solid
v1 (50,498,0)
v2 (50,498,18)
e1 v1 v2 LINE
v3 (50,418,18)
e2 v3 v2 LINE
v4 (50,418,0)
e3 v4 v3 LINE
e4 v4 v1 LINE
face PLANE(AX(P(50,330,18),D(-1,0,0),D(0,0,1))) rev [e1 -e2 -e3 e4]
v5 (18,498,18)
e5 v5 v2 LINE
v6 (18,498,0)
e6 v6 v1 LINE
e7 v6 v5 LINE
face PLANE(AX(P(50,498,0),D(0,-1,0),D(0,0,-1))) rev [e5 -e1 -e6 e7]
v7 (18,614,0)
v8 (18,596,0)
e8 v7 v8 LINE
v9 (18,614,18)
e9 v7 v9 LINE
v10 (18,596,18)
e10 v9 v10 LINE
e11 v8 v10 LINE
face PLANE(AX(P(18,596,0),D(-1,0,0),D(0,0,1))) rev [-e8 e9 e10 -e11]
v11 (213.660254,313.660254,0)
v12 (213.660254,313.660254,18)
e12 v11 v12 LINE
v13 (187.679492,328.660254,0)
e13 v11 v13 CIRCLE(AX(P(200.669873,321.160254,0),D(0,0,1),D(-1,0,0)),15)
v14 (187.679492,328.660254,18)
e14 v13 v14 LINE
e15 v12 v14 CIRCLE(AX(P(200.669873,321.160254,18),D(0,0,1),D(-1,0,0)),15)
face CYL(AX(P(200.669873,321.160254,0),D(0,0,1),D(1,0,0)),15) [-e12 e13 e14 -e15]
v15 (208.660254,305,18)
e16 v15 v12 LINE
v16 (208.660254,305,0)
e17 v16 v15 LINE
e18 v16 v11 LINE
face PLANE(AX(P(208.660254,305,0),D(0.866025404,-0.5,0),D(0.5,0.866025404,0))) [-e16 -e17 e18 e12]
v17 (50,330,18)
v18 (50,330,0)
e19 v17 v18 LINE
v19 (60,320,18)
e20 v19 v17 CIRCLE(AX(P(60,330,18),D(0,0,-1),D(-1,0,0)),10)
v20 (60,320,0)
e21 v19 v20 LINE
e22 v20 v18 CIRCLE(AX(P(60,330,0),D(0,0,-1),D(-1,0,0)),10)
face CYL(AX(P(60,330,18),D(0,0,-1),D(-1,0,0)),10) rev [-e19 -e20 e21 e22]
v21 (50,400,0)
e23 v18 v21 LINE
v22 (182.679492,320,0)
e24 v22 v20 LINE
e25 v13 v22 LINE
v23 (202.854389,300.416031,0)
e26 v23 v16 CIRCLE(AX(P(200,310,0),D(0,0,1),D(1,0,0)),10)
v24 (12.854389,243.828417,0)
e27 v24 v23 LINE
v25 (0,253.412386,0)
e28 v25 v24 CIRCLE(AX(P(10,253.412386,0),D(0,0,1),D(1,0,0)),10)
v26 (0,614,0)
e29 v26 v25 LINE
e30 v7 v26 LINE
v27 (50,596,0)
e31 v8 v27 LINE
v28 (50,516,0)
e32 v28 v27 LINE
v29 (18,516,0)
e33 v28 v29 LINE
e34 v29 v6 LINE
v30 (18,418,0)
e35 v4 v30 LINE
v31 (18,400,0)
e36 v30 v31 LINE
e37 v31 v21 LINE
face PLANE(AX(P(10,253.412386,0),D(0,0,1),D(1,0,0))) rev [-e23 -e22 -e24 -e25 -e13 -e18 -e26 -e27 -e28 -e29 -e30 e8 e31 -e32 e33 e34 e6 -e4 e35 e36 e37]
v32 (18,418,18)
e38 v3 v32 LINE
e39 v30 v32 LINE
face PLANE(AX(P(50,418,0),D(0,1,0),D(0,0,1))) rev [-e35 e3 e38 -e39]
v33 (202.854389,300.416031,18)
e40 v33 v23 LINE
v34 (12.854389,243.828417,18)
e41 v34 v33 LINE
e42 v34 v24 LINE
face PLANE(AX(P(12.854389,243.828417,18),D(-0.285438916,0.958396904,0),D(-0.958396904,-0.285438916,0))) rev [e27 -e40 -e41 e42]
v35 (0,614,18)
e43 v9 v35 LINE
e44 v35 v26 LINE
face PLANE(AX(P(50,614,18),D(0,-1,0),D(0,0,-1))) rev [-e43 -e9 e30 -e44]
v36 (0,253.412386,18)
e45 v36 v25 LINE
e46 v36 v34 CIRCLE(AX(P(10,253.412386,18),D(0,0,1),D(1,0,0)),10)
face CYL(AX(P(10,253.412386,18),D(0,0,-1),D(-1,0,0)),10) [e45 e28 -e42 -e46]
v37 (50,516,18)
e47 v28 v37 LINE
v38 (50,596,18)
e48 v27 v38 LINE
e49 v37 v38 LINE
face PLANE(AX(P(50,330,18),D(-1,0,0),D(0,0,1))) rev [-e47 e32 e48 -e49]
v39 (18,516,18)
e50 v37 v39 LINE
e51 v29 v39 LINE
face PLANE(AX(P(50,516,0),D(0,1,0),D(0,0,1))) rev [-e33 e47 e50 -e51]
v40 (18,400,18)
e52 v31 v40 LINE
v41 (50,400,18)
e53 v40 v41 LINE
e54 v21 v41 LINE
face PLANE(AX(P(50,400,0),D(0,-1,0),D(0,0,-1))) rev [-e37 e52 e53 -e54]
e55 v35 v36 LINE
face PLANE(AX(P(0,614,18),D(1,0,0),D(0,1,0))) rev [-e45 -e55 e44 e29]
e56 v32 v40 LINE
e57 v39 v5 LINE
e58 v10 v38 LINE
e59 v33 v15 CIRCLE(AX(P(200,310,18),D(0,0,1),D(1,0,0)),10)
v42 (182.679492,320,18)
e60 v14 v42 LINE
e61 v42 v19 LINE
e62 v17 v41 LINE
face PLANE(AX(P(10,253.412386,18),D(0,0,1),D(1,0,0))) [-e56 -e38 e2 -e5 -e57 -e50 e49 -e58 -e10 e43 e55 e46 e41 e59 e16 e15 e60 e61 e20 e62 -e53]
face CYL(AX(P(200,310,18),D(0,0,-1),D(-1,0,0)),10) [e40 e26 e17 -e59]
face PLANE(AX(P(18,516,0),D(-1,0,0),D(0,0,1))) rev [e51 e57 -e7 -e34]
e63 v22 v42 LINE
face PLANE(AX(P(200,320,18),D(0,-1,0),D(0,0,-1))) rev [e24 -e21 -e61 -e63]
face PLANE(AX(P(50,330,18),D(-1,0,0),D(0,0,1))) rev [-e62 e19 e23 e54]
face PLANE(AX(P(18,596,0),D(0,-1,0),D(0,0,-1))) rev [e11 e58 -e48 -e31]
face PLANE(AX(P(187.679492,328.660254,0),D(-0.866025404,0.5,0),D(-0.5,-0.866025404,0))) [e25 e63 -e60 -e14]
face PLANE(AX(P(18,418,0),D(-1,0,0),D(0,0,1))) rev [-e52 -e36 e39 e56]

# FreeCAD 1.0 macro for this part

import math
import FreeCAD as App
import Part
import Sketcher
Q = App.Units.Quantity

doc = App.newDocument("Part")
body = doc.addObject("PartDesign::Body", "Body")

# Sketch on XY plane
sketch1 = body.newObject("Sketcher::SketchObject", "Sketch")
sketch1.AttachmentSupport = (doc.getObject("XY_Plane"), [""])
sketch1.MapMode = "FlatFace"
sketch1.addGeometry(Part.LineSegment(App.Vector(0, 614, 0), App.Vector(0, 253.412386, 0)), False)
sketch1.addGeometry(Part.ArcOfCircle(Part.Circle(App.Vector(10, 253.412386, 0), App.Vector(0, 0, 1), 10), math.radians(180), math.radians(286.585087)), False)
sketch1.addGeometry(Part.LineSegment(App.Vector(12.854389, 243.828417, 0), App.Vector(202.854389, 300.416031, 0)), False)
sketch1.addGeometry(Part.ArcOfCircle(Part.Circle(App.Vector(200, 310, 0), App.Vector(0, 0, 1), 10), math.radians(-73.414913), math.radians(90)), False)
sketch1.addGeometry(Part.LineSegment(App.Vector(200, 320, 0), App.Vector(60, 320, 0)), False)
sketch1.addGeometry(Part.ArcOfCircle(Part.Circle(App.Vector(60, 330, 0), App.Vector(0, 0, 1), 10), math.radians(180), math.radians(270)), False)
sketch1.addGeometry(Part.LineSegment(App.Vector(50, 330, 0), App.Vector(50, 614, 0)), False)
sketch1.addGeometry(Part.LineSegment(App.Vector(50, 614, 0), App.Vector(0, 614, 0)), False)
sketch1.addConstraint(Sketcher.Constraint("Tangent", 0, 2, 1, 1))
sketch1.addConstraint(Sketcher.Constraint("Tangent", 1, 2, 2, 1))
sketch1.addConstraint(Sketcher.Constraint("Tangent", 2, 2, 3, 1))
sketch1.addConstraint(Sketcher.Constraint("Tangent", 3, 2, 4, 1))
sketch1.addConstraint(Sketcher.Constraint("Tangent", 4, 2, 5, 2))
sketch1.addConstraint(Sketcher.Constraint("Tangent", 5, 1, 6, 1))
sketch1.addConstraint(Sketcher.Constraint("Coincident", 6, 2, 7, 1))
sketch1.addConstraint(Sketcher.Constraint("Coincident", 7, 2, 0, 1))
sketch1.addConstraint(Sketcher.Constraint("Vertical", 0))
sketch1.addConstraint(Sketcher.Constraint("Horizontal", 4))
sketch1.addConstraint(Sketcher.Constraint("Vertical", 6))
sketch1.addConstraint(Sketcher.Constraint("Horizontal", 7))
sketch1.addConstraint(Sketcher.Constraint("Equal", 1, 3))
sketch1.addConstraint(Sketcher.Constraint("Equal", 3, 5))
sketch1.addConstraint(Sketcher.Constraint("PointOnObject", 0, 2, -2))
sketch1.addConstraint(Sketcher.Constraint("Radius", 1, 10.0))
sketch1.addConstraint(Sketcher.Constraint("DistanceX", 4, 2, 4, 1, 140.0))
sketch1.addConstraint(Sketcher.Constraint("DistanceX", 7, 2, 7, 1, 50.0))
sketch1.addConstraint(Sketcher.Constraint("DistanceY", 6, 1, 6, 2, 284.0))
sketch1.addConstraint(Sketcher.Constraint("DistanceY", -1, 1, 3, 3, 310.0))
sketch1.addConstraint(Sketcher.Constraint("Distance", 2, 198.247719))
pad1 = body.newObject("PartDesign::Pad", "Pad")
pad1.Profile = sketch1
pad1.Length = 18

# Sketch on XY plane
sketch2 = body.newObject("Sketcher::SketchObject", "Sketch001")
sketch2.AttachmentSupport = (doc.getObject("XY_Plane"), [""])
sketch2.MapMode = "FlatFace"
sketch2.AttachmentOffset = App.Placement(App.Vector(0, 0, 18), App.Rotation())
sketch2.addGeometry(Part.LineSegment(App.Vector(18, 614, 0), App.Vector(18, 596, 0)), False)
sketch2.addGeometry(Part.LineSegment(App.Vector(18, 596, 0), App.Vector(50, 596, 0)), False)
sketch2.addGeometry(Part.LineSegment(App.Vector(50, 596, 0), App.Vector(50, 614, 0)), False)
sketch2.addGeometry(Part.LineSegment(App.Vector(50, 614, 0), App.Vector(18, 614, 0)), False)
sketch2.addGeometry(Part.LineSegment(App.Vector(18, 516, 0), App.Vector(18, 498, 0)), False)
sketch2.addGeometry(Part.LineSegment(App.Vector(18, 498, 0), App.Vector(50, 498, 0)), False)
sketch2.addGeometry(Part.LineSegment(App.Vector(50, 498, 0), App.Vector(50, 516, 0)), False)
sketch2.addGeometry(Part.LineSegment(App.Vector(50, 516, 0), App.Vector(18, 516, 0)), False)
sketch2.addGeometry(Part.LineSegment(App.Vector(18, 418, 0), App.Vector(18, 400, 0)), False)
sketch2.addGeometry(Part.LineSegment(App.Vector(18, 400, 0), App.Vector(50, 400, 0)), False)
sketch2.addGeometry(Part.LineSegment(App.Vector(50, 400, 0), App.Vector(50, 418, 0)), False)
sketch2.addGeometry(Part.LineSegment(App.Vector(50, 418, 0), App.Vector(18, 418, 0)), False)
sketch2.addConstraint(Sketcher.Constraint("Coincident", 0, 2, 1, 1))
sketch2.addConstraint(Sketcher.Constraint("Coincident", 1, 2, 2, 1))
sketch2.addConstraint(Sketcher.Constraint("Coincident", 2, 2, 3, 1))
sketch2.addConstraint(Sketcher.Constraint("Coincident", 3, 2, 0, 1))
sketch2.addConstraint(Sketcher.Constraint("Coincident", 4, 2, 5, 1))
sketch2.addConstraint(Sketcher.Constraint("Coincident", 5, 2, 6, 1))
sketch2.addConstraint(Sketcher.Constraint("Coincident", 6, 2, 7, 1))
sketch2.addConstraint(Sketcher.Constraint("Coincident", 7, 2, 4, 1))
sketch2.addConstraint(Sketcher.Constraint("Coincident", 8, 2, 9, 1))
sketch2.addConstraint(Sketcher.Constraint("Coincident", 9, 2, 10, 1))
sketch2.addConstraint(Sketcher.Constraint("Coincident", 10, 2, 11, 1))
sketch2.addConstraint(Sketcher.Constraint("Coincident", 11, 2, 8, 1))
sketch2.addConstraint(Sketcher.Constraint("Vertical", 0))
sketch2.addConstraint(Sketcher.Constraint("Horizontal", 1))
sketch2.addConstraint(Sketcher.Constraint("Vertical", 2))
sketch2.addConstraint(Sketcher.Constraint("Horizontal", 3))
sketch2.addConstraint(Sketcher.Constraint("Vertical", 4))
sketch2.addConstraint(Sketcher.Constraint("Horizontal", 5))
sketch2.addConstraint(Sketcher.Constraint("Vertical", 6))
sketch2.addConstraint(Sketcher.Constraint("Horizontal", 7))
sketch2.addConstraint(Sketcher.Constraint("Vertical", 8))
sketch2.addConstraint(Sketcher.Constraint("Horizontal", 9))
sketch2.addConstraint(Sketcher.Constraint("Vertical", 10))
sketch2.addConstraint(Sketcher.Constraint("Horizontal", 11))
sketch2.addConstraint(Sketcher.Constraint("Vertical", 3, 2, 4, 2))
sketch2.addConstraint(Sketcher.Constraint("Vertical", 2, 2, 5, 2))
sketch2.addConstraint(Sketcher.Constraint("Vertical", 7, 2, 8, 2))
sketch2.addConstraint(Sketcher.Constraint("Vertical", 6, 2, 9, 2))
sketch2.addConstraint(Sketcher.Constraint("Equal", 2, 4))
sketch2.addConstraint(Sketcher.Constraint("Equal", 6, 8))
sketch2.addConstraint(Sketcher.Constraint("DistanceX", 1, 1, 1, 2, 32.0))
sketch2.addConstraint(Sketcher.Constraint("DistanceY", 0, 2, 0, 1, 18.0))
sketch2.addConstraint(Sketcher.Constraint("DistanceX", -1, 1, 0, 2, 18.0))
sketch2.addConstraint(Sketcher.Constraint("DistanceY", -1, 1, 0, 2, 596.0))
sketch2.addConstraint(Sketcher.Constraint("DistanceY", -1, 1, 4, 2, 498.0))
sketch2.addConstraint(Sketcher.Constraint("DistanceY", -1, 1, 8, 2, 400.0))
pocket1 = body.newObject("PartDesign::Pocket", "Pocket")
pocket1.Profile = sketch2
pocket1.Type = "ThroughAll"

# Sketch on XY plane
sketch3 = body.newObject("Sketcher::SketchObject", "Sketch002")
sketch3.AttachmentSupport = (doc.getObject("XY_Plane"), [""])
sketch3.MapMode = "FlatFace"
sketch3.AttachmentOffset = App.Placement(App.Vector(0, 0, 18), App.Rotation())
sketch3.addGeometry(Part.LineSegment(App.Vector(208.660254, 305, 0), App.Vector(213.660254, 313.660254, 0)), False)
sketch3.addGeometry(Part.ArcOfCircle(Part.Circle(App.Vector(200.669873, 321.160254, 0), App.Vector(0, 0, 1), 15), math.radians(-30), math.radians(150)), False)
sketch3.addGeometry(Part.LineSegment(App.Vector(187.679492, 328.660254, 0), App.Vector(182.679492, 320, 0)), False)
sketch3.addGeometry(Part.LineSegment(App.Vector(182.679492, 320, 0), App.Vector(208.660254, 305, 0)), False)
sketch3.addConstraint(Sketcher.Constraint("Tangent", 0, 2, 1, 1))
sketch3.addConstraint(Sketcher.Constraint("Tangent", 1, 2, 2, 1))
sketch3.addConstraint(Sketcher.Constraint("Coincident", 2, 2, 3, 1))
sketch3.addConstraint(Sketcher.Constraint("Coincident", 3, 2, 0, 1))
sketch3.addConstraint(Sketcher.Constraint("Parallel", 0, 2))
sketch3.addConstraint(Sketcher.Constraint("Perpendicular", 2, 3))
sketch3.addConstraint(Sketcher.Constraint("Radius", 1, 15.0))
sketch3.addConstraint(Sketcher.Constraint("Angle", 0, Q("60 deg")))
sketch3.addConstraint(Sketcher.Constraint("Distance", 0, 10.0))
sketch3.addConstraint(Sketcher.Constraint("DistanceY", -1, 1, 2, 2, 320.0))
sketch3.addConstraint(Sketcher.Constraint("DistanceX", -1, 1, 1, 2, 187.679492))
pad2 = body.newObject("PartDesign::Pad", "Pad001")
pad2.Profile = sketch3
pad2.Length = 18
pad2.Reversed = True

doc.recompute()
